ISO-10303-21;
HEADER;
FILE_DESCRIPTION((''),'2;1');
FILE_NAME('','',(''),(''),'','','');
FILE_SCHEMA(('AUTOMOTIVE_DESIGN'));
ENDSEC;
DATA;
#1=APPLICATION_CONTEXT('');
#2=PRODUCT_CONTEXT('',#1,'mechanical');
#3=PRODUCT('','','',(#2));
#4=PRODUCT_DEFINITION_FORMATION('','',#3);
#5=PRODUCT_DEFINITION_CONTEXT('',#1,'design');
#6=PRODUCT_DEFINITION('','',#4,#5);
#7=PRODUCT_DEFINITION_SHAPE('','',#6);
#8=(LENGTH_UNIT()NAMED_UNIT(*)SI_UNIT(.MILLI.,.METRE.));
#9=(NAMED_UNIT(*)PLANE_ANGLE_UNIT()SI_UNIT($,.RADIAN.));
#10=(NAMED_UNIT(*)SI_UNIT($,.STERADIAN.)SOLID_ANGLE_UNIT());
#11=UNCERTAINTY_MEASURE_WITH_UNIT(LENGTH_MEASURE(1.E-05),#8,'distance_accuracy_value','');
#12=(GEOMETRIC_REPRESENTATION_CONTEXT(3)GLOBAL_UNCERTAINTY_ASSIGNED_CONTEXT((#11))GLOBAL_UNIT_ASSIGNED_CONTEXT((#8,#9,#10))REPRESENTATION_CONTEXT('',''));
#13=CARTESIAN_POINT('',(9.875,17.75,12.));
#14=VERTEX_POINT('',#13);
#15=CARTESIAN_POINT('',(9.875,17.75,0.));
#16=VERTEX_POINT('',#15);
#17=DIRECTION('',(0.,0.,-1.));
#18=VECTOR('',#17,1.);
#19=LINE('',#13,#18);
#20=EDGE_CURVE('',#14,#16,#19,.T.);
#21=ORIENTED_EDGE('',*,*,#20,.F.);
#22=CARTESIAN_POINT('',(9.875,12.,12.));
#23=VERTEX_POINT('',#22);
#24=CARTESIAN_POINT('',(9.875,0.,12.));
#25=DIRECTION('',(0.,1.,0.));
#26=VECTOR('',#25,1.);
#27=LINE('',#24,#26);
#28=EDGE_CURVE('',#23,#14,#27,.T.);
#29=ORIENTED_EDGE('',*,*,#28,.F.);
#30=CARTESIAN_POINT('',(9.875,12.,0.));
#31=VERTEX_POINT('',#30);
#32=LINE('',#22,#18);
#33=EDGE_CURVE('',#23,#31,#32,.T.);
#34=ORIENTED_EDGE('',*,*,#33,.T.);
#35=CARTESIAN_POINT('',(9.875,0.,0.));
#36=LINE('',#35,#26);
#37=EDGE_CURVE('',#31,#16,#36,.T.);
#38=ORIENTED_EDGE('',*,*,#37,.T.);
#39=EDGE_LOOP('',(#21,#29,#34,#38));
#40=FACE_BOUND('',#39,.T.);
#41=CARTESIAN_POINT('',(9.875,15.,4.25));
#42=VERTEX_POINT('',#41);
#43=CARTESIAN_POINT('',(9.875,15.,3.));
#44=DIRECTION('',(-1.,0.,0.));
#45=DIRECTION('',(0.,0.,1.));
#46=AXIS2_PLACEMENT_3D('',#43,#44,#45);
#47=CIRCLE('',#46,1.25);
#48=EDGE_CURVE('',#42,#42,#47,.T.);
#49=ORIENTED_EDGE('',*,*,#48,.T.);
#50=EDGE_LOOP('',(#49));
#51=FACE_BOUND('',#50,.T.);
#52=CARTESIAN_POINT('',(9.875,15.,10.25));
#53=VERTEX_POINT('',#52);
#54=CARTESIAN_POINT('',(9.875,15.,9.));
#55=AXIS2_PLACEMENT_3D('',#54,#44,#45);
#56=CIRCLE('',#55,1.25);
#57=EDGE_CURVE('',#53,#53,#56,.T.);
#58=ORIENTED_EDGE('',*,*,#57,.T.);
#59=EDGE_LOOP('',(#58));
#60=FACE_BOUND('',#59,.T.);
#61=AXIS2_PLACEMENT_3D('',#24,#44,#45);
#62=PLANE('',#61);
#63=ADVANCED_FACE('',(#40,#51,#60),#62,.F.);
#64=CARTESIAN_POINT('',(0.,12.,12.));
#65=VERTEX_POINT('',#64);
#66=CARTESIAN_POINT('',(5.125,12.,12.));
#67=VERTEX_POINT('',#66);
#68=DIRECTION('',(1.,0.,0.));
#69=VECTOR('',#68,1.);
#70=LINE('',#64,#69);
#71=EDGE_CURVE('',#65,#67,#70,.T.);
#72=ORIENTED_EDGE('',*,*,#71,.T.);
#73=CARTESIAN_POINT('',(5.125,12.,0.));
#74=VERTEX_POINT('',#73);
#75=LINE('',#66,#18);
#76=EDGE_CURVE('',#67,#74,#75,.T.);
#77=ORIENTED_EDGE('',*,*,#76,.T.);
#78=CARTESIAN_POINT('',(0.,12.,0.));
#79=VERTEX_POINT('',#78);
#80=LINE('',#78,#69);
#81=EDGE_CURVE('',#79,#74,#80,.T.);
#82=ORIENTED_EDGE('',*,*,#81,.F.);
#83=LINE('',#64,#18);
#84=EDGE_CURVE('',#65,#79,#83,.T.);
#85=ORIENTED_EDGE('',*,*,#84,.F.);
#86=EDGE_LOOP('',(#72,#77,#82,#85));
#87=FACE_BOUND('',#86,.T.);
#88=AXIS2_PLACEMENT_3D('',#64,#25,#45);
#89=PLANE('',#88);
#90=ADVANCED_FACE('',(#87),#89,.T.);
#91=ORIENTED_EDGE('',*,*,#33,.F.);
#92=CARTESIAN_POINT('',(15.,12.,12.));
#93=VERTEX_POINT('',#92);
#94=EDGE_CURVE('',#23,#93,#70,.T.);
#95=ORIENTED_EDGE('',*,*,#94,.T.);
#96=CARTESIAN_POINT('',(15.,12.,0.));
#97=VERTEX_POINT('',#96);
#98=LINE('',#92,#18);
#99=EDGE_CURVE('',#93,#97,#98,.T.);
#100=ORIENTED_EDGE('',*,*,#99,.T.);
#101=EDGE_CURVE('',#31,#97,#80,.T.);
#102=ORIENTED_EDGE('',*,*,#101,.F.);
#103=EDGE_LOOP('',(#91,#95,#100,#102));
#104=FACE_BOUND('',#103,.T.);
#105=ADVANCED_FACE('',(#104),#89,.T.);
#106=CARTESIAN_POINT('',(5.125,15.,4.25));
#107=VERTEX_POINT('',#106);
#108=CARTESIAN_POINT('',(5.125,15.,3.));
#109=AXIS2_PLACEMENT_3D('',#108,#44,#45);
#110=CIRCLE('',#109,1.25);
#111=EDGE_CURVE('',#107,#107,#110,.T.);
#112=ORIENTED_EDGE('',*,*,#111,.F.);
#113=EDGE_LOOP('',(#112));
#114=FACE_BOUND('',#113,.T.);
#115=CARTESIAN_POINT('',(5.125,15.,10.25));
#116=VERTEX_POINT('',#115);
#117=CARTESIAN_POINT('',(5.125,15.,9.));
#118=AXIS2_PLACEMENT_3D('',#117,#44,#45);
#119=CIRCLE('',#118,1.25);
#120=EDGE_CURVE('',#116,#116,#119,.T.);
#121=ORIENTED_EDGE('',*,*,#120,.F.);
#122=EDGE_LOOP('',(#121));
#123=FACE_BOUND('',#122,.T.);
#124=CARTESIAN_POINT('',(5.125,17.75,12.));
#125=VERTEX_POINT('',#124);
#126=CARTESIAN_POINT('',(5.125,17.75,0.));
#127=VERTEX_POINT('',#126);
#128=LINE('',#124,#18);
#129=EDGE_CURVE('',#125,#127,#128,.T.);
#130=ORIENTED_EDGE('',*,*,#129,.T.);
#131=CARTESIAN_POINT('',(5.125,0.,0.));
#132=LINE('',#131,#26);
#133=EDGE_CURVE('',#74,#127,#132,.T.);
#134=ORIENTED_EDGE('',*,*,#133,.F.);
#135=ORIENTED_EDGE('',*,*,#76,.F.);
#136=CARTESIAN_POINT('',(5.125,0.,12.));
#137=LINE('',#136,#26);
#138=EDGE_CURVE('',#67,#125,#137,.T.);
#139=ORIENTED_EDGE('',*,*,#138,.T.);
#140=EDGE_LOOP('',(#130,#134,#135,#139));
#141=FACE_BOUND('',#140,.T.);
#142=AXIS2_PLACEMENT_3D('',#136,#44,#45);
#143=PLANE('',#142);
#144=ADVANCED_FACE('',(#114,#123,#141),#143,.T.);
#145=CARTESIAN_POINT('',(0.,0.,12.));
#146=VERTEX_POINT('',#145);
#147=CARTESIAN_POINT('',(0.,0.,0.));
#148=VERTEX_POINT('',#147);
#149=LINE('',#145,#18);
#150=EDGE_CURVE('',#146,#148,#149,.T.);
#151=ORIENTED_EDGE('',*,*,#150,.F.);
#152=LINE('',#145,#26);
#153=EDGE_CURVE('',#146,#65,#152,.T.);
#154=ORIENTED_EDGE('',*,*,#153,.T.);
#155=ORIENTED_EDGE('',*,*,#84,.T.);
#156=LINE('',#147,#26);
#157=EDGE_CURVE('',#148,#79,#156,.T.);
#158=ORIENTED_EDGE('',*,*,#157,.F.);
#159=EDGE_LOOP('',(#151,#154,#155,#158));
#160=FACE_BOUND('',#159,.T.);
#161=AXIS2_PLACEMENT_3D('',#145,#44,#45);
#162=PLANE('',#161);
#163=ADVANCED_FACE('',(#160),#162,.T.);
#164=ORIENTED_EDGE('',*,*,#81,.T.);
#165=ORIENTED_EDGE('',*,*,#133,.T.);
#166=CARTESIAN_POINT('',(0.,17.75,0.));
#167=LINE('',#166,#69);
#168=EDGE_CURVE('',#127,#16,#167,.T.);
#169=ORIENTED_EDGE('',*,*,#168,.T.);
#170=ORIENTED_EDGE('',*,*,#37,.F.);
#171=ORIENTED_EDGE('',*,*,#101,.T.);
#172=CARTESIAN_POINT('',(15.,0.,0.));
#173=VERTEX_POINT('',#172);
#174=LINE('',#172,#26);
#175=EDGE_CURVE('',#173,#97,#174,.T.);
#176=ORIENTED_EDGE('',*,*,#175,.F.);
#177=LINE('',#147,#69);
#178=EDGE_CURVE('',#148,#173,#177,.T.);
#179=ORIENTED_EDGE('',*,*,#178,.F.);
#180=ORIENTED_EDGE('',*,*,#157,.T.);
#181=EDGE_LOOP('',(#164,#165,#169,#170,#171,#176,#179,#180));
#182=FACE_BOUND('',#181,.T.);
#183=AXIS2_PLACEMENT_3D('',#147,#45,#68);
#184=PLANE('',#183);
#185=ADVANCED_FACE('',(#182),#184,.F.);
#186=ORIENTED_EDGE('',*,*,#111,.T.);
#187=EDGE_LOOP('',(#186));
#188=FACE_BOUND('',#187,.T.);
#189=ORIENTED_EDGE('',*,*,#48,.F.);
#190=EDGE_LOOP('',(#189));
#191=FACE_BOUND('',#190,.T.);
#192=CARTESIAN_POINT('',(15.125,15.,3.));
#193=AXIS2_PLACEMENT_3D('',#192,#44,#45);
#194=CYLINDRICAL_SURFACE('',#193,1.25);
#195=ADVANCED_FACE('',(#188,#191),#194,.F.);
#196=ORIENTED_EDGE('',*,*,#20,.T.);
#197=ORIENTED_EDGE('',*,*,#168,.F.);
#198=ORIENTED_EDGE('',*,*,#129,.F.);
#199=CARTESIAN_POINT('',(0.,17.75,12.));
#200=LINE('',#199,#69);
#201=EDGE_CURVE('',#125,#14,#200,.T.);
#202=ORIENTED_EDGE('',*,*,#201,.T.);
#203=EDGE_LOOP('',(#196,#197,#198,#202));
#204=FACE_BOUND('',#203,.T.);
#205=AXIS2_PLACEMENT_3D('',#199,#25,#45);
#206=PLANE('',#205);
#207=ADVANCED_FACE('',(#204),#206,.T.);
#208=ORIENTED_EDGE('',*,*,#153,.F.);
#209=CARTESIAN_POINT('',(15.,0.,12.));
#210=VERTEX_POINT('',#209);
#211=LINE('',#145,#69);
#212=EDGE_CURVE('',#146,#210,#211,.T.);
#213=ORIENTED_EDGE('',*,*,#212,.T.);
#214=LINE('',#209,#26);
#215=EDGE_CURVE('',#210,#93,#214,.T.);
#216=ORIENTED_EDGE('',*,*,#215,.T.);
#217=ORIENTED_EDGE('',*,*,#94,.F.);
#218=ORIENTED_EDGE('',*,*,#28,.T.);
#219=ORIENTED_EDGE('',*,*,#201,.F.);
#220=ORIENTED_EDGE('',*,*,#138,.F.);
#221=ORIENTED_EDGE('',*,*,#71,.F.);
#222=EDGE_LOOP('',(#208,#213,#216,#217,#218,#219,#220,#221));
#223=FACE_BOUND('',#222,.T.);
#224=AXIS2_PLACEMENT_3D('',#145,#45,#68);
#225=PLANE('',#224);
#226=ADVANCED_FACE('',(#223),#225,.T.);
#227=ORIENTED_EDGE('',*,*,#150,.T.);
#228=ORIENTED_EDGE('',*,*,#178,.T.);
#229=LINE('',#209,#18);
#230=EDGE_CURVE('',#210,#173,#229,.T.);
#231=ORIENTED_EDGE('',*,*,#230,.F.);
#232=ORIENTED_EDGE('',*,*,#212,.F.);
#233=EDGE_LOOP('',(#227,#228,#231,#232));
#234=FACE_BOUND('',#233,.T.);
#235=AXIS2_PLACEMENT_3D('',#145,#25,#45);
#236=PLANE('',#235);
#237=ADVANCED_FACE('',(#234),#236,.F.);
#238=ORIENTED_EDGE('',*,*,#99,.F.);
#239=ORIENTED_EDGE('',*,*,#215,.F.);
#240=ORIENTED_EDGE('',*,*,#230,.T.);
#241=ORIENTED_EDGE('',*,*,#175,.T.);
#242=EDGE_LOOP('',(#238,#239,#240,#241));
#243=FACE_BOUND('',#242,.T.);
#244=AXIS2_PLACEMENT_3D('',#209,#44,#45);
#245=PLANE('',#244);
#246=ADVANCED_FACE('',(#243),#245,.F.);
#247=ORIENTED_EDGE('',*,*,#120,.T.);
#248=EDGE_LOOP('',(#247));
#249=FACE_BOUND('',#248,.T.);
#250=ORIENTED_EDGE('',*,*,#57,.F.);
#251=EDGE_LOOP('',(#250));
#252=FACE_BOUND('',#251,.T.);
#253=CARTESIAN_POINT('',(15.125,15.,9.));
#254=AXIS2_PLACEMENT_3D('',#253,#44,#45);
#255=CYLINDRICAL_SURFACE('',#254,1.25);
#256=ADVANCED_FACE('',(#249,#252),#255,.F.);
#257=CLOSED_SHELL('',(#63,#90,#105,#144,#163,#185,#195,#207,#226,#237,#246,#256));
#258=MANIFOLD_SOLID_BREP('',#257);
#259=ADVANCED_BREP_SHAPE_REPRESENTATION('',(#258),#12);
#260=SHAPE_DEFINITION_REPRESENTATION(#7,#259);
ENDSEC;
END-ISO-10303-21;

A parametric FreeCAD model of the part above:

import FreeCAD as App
import Part
import Sketcher


def add_polygon(sketch, points):
    """Adds a closed chain of lines whose ends are joined by coincident constraints."""
    first, n = sketch.GeometryCount, len(points)
    for a, b in zip(points, points[1:] + points[:1]):
        sketch.addGeometry(Part.LineSegment(App.Vector(*a, 0), App.Vector(*b, 0)), False)
    for i in range(n):
        sketch.addConstraint(Sketcher.Constraint("Coincident", first + i, 2, first + (i + 1) % n, 1))

doc = App.newDocument("Part")
params = doc.addObject("Spreadsheet::Sheet", "Params")
for row, (alias, value) in enumerate([
    ("sketch1_width", "15 mm"),
    ("sketch1_height", "12 mm"),
    ("sketch1_width2", "4.75 mm"),
    ("sketch1_height2", "5.75 mm"),
    ("pad1_length", "12 mm"),
    ("sketch2_diameter", "2.5 mm"),
    ("pocket1_length", "10 mm"),
], start=1):
    params.set(f"A{row}", alias)
    params.set(f"B{row}", "=" + value)
    params.setAlias(f"B{row}", alias)

body = doc.addObject("PartDesign::Body", "Body")

# Sketch on XY plane
sketch1 = body.newObject("Sketcher::SketchObject", "Sketch")
sketch1.AttachmentSupport = (doc.getObject("XY_Plane"), [""])
sketch1.MapMode = "FlatFace"
add_polygon(sketch1, [(5.1, 17.8), (5.1, 12), (0, 12), (0, 0), (15, 0), (15, 12), (9.9, 12), (9.9, 17.8)])  # lines 0-7
sketch1.addConstraint([
    Sketcher.Constraint("Vertical", 0),
    Sketcher.Constraint("Horizontal", 1),
    Sketcher.Constraint("Vertical", 2),
    Sketcher.Constraint("Horizontal", 3),
    Sketcher.Constraint("Vertical", 4),
    Sketcher.Constraint("Horizontal", 5),
    Sketcher.Constraint("Vertical", 6),
    Sketcher.Constraint("Horizontal", 7),
    Sketcher.Constraint("Coincident", 2, 2, -1, 1),
    Sketcher.Constraint("Horizontal", 1, 2, 4, 2),
    Sketcher.Constraint("Equal", 1, 5),
    Sketcher.Constraint("DistanceX", 3, 1, 3, 2, 15.0),
    Sketcher.Constraint("DistanceY", 2, 2, 2, 1, 12.0),
    Sketcher.Constraint("DistanceX", 7, 2, 7, 1, 4.75),
    Sketcher.Constraint("DistanceY", 0, 2, 0, 1, 5.75),
])
sketch1.setExpression("Constraints[19]", "Params.sketch1_width")
sketch1.setExpression("Constraints[20]", "Params.sketch1_height")
sketch1.setExpression("Constraints[21]", "Params.sketch1_width2")
sketch1.setExpression("Constraints[22]", "Params.sketch1_height2")
pad1 = body.newObject("PartDesign::Pad", "Pad")
pad1.Profile = sketch1
pad1.setExpression("Length", "Params.pad1_length")

# Sketch on YZ plane
sketch2 = body.newObject("Sketcher::SketchObject", "Sketch001")
sketch2.AttachmentSupport = (doc.getObject("YZ_Plane"), [""])
sketch2.MapMode = "FlatFace"
sketch2.AttachmentOffset = App.Placement(App.Vector(0, 0, 5.125), App.Rotation())
sketch2.addGeometry([
    Part.Circle(App.Vector(15, 3, 0), App.Vector(0, 0, 1), 1.2),
    Part.Circle(App.Vector(15, 9, 0), App.Vector(0, 0, 1), 1.2),
], False)
sketch2.addConstraint([
    Sketcher.Constraint("Equal", 0, 1),
    Sketcher.Constraint("Vertical", 0, 3, 1, 3),
    Sketcher.Constraint("Diameter", 0, 2.5),
    Sketcher.Constraint("DistanceX", -1, 1, 0, 3, 15.0),
    Sketcher.Constraint("DistanceY", -1, 1, 0, 3, 3.0),
    Sketcher.Constraint("DistanceY", -1, 1, 1, 3, 9.0),
])
sketch2.setExpression("Constraints[2]", "Params.sketch2_diameter")
pocket1 = body.newObject("PartDesign::Pocket", "Pocket")
pocket1.Profile = sketch2
pocket1.setExpression("Length", "Params.pocket1_length")
pocket1.Reversed = True

doc.recompute()
